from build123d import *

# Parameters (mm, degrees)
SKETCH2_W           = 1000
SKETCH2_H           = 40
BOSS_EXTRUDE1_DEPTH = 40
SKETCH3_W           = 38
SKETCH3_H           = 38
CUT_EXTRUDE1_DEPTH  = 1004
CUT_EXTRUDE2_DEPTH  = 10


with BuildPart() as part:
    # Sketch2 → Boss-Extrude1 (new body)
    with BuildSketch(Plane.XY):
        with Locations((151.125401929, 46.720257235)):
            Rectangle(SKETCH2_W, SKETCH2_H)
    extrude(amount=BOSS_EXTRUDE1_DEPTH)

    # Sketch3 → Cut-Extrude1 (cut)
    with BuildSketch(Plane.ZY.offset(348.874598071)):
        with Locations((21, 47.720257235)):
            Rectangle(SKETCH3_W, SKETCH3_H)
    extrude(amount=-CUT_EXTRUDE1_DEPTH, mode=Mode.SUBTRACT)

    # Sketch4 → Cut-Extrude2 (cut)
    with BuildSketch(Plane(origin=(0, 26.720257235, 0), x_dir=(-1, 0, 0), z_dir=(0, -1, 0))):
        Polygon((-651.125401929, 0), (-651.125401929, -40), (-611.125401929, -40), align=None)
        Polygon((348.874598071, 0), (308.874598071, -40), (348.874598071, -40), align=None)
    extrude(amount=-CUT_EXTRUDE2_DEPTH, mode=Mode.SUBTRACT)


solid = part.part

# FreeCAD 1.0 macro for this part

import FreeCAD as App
import Part
import Sketcher


def add_polygon(sketch, points):
    """Adds a closed chain of lines whose ends are joined by coincident constraints."""
    first, n = sketch.GeometryCount, len(points)
    for a, b in zip(points, points[1:] + points[:1]):
        sketch.addGeometry(Part.LineSegment(App.Vector(*a, 0), App.Vector(*b, 0)), False)
    for i in range(n):
        sketch.addConstraint(Sketcher.Constraint("Coincident", first + i, 2, first + (i + 1) % n, 1))

doc = App.newDocument("Part")
body = doc.addObject("PartDesign::Body", "Body")

# Sketch on XY plane
sketch1 = doc.addObject("Sketcher::SketchObject", "Sketch")
body.addObject(sketch1)
sketch1.AttachmentSupport = (doc.XY_Plane, [""])
sketch1.MapMode = "FlatFace"
add_polygon(sketch1, [(-349, 67), (-349, 27), (651, 27), (651, 67)])  # lines 0-3
sketch1.addConstraint(Sketcher.Constraint("Vertical", 0))
sketch1.addConstraint(Sketcher.Constraint("Horizontal", 1))
sketch1.addConstraint(Sketcher.Constraint("Vertical", 2))
sketch1.addConstraint(Sketcher.Constraint("Horizontal", 3))
sketch1.addConstraint(Sketcher.Constraint("DistanceX", 1, 1, 1, 2, 1000.0))
sketch1.addConstraint(Sketcher.Constraint("DistanceY", 0, 2, 0, 1, 40.0))
sketch1.addConstraint(Sketcher.Constraint("DistanceX", 0, 2, -1, 1, 348.874598))
sketch1.addConstraint(Sketcher.Constraint("DistanceY", -1, 1, 0, 2, 26.720257))
pad1 = doc.addObject("PartDesign::Pad", "Pad")
body.addObject(pad1)
pad1.Profile = sketch1
pad1.Length = 40

# Sketch on YZ plane
sketch2 = doc.addObject("Sketcher::SketchObject", "Sketch001")
body.addObject(sketch2)
sketch2.AttachmentSupport = (doc.YZ_Plane, [""])
sketch2.MapMode = "FlatFace"
sketch2.AttachmentOffset = App.Placement(App.Vector(0, 0, -348.874598), App.Rotation())
add_polygon(sketch2, [(67, 2), (29, 2), (29, 40), (67, 40)])  # lines 0-3
sketch2.addConstraint(Sketcher.Constraint("Horizontal", 0))
sketch2.addConstraint(Sketcher.Constraint("Vertical", 1))
sketch2.addConstraint(Sketcher.Constraint("Horizontal", 2))
sketch2.addConstraint(Sketcher.Constraint("Vertical", 3))
sketch2.addConstraint(Sketcher.Constraint("Equal", 2, 1))
sketch2.addConstraint(Sketcher.Constraint("DistanceX", 0, 2, 0, 1, 38.0))
sketch2.addConstraint(Sketcher.Constraint("DistanceY", -1, 1, 0, 2, 2.0))
sketch2.addConstraint(Sketcher.Constraint("DistanceX", -1, 1, 0, 2, 28.720257))
pocket1 = doc.addObject("PartDesign::Pocket", "Pocket")
body.addObject(pocket1)
pocket1.Profile = sketch2
pocket1.Length = 1004
pocket1.Reversed = True

# Sketch on XZ plane
sketch3 = doc.addObject("Sketcher::SketchObject", "Sketch002")
body.addObject(sketch3)
sketch3.AttachmentSupport = (doc.XZ_Plane, [""])
sketch3.MapMode = "FlatFace"
sketch3.AttachmentOffset = App.Placement(App.Vector(0, 0, -26.720257), App.Rotation())
add_polygon(sketch3, [(651, 0), (651, 40), (611, 40)])  # lines 0-2
add_polygon(sketch3, [(-349, 0), (-309, 40), (-349, 40)])  # lines 3-5
sketch3.addConstraint(Sketcher.Constraint("Vertical", 0))
sketch3.addConstraint(Sketcher.Constraint("Horizontal", 1))
sketch3.addConstraint(Sketcher.Constraint("Horizontal", 4))
sketch3.addConstraint(Sketcher.Constraint("Vertical", 5))
sketch3.addConstraint(Sketcher.Constraint("PointOnObject", 2, 2, -1))
sketch3.addConstraint(Sketcher.Constraint("PointOnObject", 5, 2, -1))
sketch3.addConstraint(Sketcher.Constraint("Perpendicular", 2, 3))
sketch3.addConstraint(Sketcher.Constraint("Horizontal", 1, 2, 3, 2))
sketch3.addConstraint(Sketcher.Constraint("Equal", 1, 4))
sketch3.addConstraint(Sketcher.Constraint("DistanceX", 1, 2, 1, 1, 40.0))
sketch3.addConstraint(Sketcher.Constraint("DistanceX", 3, 2, 1, 2, 920.0))
sketch3.addConstraint(Sketcher.Constraint("DistanceX", -1, 1, 0, 2, 651.125402))
pocket2 = doc.addObject("PartDesign::Pocket", "Pocket001")
body.addObject(pocket2)
pocket2.Profile = sketch3
pocket2.Length = 10

doc.recompute()
